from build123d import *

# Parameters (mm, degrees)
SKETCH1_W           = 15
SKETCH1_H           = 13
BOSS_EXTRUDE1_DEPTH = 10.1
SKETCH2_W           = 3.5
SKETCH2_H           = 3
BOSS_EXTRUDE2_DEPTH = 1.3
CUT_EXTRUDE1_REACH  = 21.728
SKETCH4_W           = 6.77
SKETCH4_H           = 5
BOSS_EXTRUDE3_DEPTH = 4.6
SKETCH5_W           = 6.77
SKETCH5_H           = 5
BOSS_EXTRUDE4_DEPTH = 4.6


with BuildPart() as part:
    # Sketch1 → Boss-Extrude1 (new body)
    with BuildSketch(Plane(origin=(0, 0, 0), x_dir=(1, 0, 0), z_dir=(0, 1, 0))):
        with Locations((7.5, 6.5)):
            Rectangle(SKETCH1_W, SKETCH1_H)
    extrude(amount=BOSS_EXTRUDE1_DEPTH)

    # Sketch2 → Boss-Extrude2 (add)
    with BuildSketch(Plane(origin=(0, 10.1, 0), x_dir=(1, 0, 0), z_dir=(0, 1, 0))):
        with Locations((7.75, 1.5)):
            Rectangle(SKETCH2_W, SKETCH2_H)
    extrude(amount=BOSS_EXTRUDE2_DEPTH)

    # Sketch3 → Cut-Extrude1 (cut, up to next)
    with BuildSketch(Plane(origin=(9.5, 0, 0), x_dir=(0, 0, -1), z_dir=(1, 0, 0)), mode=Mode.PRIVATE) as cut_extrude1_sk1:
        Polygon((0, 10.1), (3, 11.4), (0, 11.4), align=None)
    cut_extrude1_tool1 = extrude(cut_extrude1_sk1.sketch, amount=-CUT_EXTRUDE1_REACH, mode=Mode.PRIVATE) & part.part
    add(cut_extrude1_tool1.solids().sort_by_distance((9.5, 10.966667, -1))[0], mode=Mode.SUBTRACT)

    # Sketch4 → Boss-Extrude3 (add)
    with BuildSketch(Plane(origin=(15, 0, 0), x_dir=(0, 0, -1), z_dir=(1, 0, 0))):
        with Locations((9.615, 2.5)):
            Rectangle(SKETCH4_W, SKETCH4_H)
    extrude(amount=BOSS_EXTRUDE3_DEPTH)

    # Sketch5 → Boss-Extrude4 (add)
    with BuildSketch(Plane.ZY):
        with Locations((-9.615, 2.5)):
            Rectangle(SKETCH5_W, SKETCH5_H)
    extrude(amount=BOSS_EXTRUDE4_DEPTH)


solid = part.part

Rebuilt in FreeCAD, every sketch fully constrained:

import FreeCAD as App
import Part
import Sketcher
Q = App.Units.Quantity

doc = App.newDocument("Part")
body = doc.addObject("PartDesign::Body", "Body")

sketch1 = body.newObject("Sketcher::SketchObject", "Sketch")
sketch1.AttachmentSupport = (doc.getObject("XZ_Plane"), [""])
sketch1.MapMode = "FlatFace"
sketch1.addGeometry([
    Part.LineSegment(App.Vector(0, -13, 0), App.Vector(0, 0, 0)),
    Part.LineSegment(App.Vector(0, 0, 0), App.Vector(15, 0, 0)),
    Part.LineSegment(App.Vector(15, 0, 0), App.Vector(15, -13, 0)),
    Part.LineSegment(App.Vector(15, -13, 0), App.Vector(0, -13, 0)),
], False)
sketch1.addConstraint([
    Sketcher.Constraint("Coincident", 0, 2, 1, 1),
    Sketcher.Constraint("Coincident", 1, 2, 2, 1),
    Sketcher.Constraint("Coincident", 2, 2, 3, 1),
    Sketcher.Constraint("Coincident", 3, 2, 0, 1),
    Sketcher.Constraint("Vertical", 0),
    Sketcher.Constraint("Horizontal", 1),
    Sketcher.Constraint("Vertical", 2),
    Sketcher.Constraint("Horizontal", 3),
    Sketcher.Constraint("Coincident", 0, 2, -1, 1),
    Sketcher.Constraint("DistanceX", 1, 1, 1, 2, Q("15 mm")),
    Sketcher.Constraint("DistanceY", 0, 1, 0, 2, Q("13 mm")),
])
pad1 = body.newObject("PartDesign::Pad", "Pad")
pad1.Profile = sketch1
pad1.Length = 10.1
pad1.Reversed = True

sketch2 = body.newObject("Sketcher::SketchObject", "Sketch001")
sketch2.AttachmentSupport = (doc.getObject("XZ_Plane"), [""])
sketch2.MapMode = "FlatFace"
sketch2.AttachmentOffset = App.Placement(App.Vector(0, 0, -10.1), App.Rotation())
sketch2.addGeometry([
    Part.LineSegment(App.Vector(6, -3, 0), App.Vector(6, 0, 0)),
    Part.LineSegment(App.Vector(6, 0, 0), App.Vector(9.5, 0, 0)),
    Part.LineSegment(App.Vector(9.5, 0, 0), App.Vector(9.5, -3, 0)),
    Part.LineSegment(App.Vector(9.5, -3, 0), App.Vector(6, -3, 0)),
], False)
sketch2.addConstraint([
    Sketcher.Constraint("Coincident", 0, 2, 1, 1),
    Sketcher.Constraint("Coincident", 1, 2, 2, 1),
    Sketcher.Constraint("Coincident", 2, 2, 3, 1),
    Sketcher.Constraint("Coincident", 3, 2, 0, 1),
    Sketcher.Constraint("Vertical", 0),
    Sketcher.Constraint("Horizontal", 1),
    Sketcher.Constraint("Vertical", 2),
    Sketcher.Constraint("Horizontal", 3),
    Sketcher.Constraint("PointOnObject", 0, 2, -1),
    Sketcher.Constraint("DistanceY", 0, 1, 0, 2, Q("3 mm")),
    Sketcher.Constraint("DistanceX", 1, 1, 1, 2, Q("3.5 mm")),
    Sketcher.Constraint("DistanceX", -1, 1, 0, 2, Q("6 mm")),
])
pad2 = body.newObject("PartDesign::Pad", "Pad001")
pad2.Profile = sketch2
pad2.Length = 1.3
pad2.Reversed = True

sketch3 = body.newObject("Sketcher::SketchObject", "Sketch002")
sketch3.AttachmentSupport = (doc.getObject("YZ_Plane"), [""])
sketch3.MapMode = "FlatFace"
sketch3.AttachmentOffset = App.Placement(App.Vector(0, 0, 9.5), App.Rotation())
sketch3.addGeometry([
    Part.LineSegment(App.Vector(10.1, 0, 0), App.Vector(11.4, -3, 0)),
    Part.LineSegment(App.Vector(11.4, -3, 0), App.Vector(11.4, 0, 0)),
    Part.LineSegment(App.Vector(11.4, 0, 0), App.Vector(10.1, 0, 0)),
], False)
sketch3.addConstraint([
    Sketcher.Constraint("Coincident", 0, 2, 1, 1),
    Sketcher.Constraint("Coincident", 1, 2, 2, 1),
    Sketcher.Constraint("Coincident", 2, 2, 0, 1),
    Sketcher.Constraint("Vertical", 1),
    Sketcher.Constraint("Horizontal", 2),
    Sketcher.Constraint("PointOnObject", 1, 2, -1),
    Sketcher.Constraint("DistanceY", 1, 1, 1, 2, Q("3 mm")),
    Sketcher.Constraint("DistanceX", 2, 2, 2, 1, Q("1.3 mm")),
    Sketcher.Constraint("DistanceX", -1, 1, 0, 2, Q("11.4 mm")),
])
pocket1 = body.newObject("PartDesign::Pocket", "Pocket")
pocket1.Profile = sketch3
pocket1.Type = "UpToFirst"

sketch4 = body.newObject("Sketcher::SketchObject", "Sketch003")
sketch4.AttachmentSupport = (doc.getObject("YZ_Plane"), [""])
sketch4.MapMode = "FlatFace"
sketch4.AttachmentOffset = App.Placement(App.Vector(0, 0, 15), App.Rotation())
sketch4.addGeometry([
    Part.LineSegment(App.Vector(5, -6.23, 0), App.Vector(0, -6.23, 0)),
    Part.LineSegment(App.Vector(0, -6.23, 0), App.Vector(0, -13, 0)),
    Part.LineSegment(App.Vector(0, -13, 0), App.Vector(5, -13, 0)),
    Part.LineSegment(App.Vector(5, -13, 0), App.Vector(5, -6.23, 0)),
], False)
sketch4.addConstraint([
    Sketcher.Constraint("Coincident", 0, 2, 1, 1),
    Sketcher.Constraint("Coincident", 1, 2, 2, 1),
    Sketcher.Constraint("Coincident", 2, 2, 3, 1),
    Sketcher.Constraint("Coincident", 3, 2, 0, 1),
    Sketcher.Constraint("Horizontal", 0),
    Sketcher.Constraint("Vertical", 1),
    Sketcher.Constraint("Horizontal", 2),
    Sketcher.Constraint("Vertical", 3),
    Sketcher.Constraint("PointOnObject", 0, 2, -2),
    Sketcher.Constraint("DistanceX", 0, 2, 0, 1, Q("5 mm")),
    Sketcher.Constraint("DistanceY", 1, 2, -1, 1, Q("13 mm")),
    Sketcher.Constraint("DistanceY", 1, 2, 1, 1, Q("6.77 mm")),
])
pad3 = body.newObject("PartDesign::Pad", "Pad002")
pad3.Profile = sketch4
pad3.Length = 4.6

sketch5 = body.newObject("Sketcher::SketchObject", "Sketch004")
sketch5.AttachmentSupport = (doc.getObject("YZ_Plane"), [""])
sketch5.MapMode = "FlatFace"
sketch5.addGeometry([
    Part.LineSegment(App.Vector(5, -13, 0), App.Vector(0, -13, 0)),
    Part.LineSegment(App.Vector(0, -13, 0), App.Vector(0, -6.23, 0)),
    Part.LineSegment(App.Vector(0, -6.23, 0), App.Vector(5, -6.23, 0)),
    Part.LineSegment(App.Vector(5, -6.23, 0), App.Vector(5, -13, 0)),
], False)
sketch5.addConstraint([
    Sketcher.Constraint("Coincident", 0, 2, 1, 1),
    Sketcher.Constraint("Coincident", 1, 2, 2, 1),
    Sketcher.Constraint("Coincident", 2, 2, 3, 1),
    Sketcher.Constraint("Coincident", 3, 2, 0, 1),
    Sketcher.Constraint("Horizontal", 0),
    Sketcher.Constraint("Vertical", 1),
    Sketcher.Constraint("Horizontal", 2),
    Sketcher.Constraint("Vertical", 3),
    Sketcher.Constraint("PointOnObject", 0, 2, -2),
    Sketcher.Constraint("DistanceX", 0, 2, 0, 1, Q("5 mm")),
    Sketcher.Constraint("DistanceY", 0, 2, -1, 1, Q("13 mm")),
    Sketcher.Constraint("DistanceY", 1, 1, 1, 2, Q("6.77 mm")),
])
pad4 = body.newObject("PartDesign::Pad", "Pad003")
pad4.Profile = sketch5
pad4.Length = 4.6
pad4.Reversed = True

doc.recompute()
